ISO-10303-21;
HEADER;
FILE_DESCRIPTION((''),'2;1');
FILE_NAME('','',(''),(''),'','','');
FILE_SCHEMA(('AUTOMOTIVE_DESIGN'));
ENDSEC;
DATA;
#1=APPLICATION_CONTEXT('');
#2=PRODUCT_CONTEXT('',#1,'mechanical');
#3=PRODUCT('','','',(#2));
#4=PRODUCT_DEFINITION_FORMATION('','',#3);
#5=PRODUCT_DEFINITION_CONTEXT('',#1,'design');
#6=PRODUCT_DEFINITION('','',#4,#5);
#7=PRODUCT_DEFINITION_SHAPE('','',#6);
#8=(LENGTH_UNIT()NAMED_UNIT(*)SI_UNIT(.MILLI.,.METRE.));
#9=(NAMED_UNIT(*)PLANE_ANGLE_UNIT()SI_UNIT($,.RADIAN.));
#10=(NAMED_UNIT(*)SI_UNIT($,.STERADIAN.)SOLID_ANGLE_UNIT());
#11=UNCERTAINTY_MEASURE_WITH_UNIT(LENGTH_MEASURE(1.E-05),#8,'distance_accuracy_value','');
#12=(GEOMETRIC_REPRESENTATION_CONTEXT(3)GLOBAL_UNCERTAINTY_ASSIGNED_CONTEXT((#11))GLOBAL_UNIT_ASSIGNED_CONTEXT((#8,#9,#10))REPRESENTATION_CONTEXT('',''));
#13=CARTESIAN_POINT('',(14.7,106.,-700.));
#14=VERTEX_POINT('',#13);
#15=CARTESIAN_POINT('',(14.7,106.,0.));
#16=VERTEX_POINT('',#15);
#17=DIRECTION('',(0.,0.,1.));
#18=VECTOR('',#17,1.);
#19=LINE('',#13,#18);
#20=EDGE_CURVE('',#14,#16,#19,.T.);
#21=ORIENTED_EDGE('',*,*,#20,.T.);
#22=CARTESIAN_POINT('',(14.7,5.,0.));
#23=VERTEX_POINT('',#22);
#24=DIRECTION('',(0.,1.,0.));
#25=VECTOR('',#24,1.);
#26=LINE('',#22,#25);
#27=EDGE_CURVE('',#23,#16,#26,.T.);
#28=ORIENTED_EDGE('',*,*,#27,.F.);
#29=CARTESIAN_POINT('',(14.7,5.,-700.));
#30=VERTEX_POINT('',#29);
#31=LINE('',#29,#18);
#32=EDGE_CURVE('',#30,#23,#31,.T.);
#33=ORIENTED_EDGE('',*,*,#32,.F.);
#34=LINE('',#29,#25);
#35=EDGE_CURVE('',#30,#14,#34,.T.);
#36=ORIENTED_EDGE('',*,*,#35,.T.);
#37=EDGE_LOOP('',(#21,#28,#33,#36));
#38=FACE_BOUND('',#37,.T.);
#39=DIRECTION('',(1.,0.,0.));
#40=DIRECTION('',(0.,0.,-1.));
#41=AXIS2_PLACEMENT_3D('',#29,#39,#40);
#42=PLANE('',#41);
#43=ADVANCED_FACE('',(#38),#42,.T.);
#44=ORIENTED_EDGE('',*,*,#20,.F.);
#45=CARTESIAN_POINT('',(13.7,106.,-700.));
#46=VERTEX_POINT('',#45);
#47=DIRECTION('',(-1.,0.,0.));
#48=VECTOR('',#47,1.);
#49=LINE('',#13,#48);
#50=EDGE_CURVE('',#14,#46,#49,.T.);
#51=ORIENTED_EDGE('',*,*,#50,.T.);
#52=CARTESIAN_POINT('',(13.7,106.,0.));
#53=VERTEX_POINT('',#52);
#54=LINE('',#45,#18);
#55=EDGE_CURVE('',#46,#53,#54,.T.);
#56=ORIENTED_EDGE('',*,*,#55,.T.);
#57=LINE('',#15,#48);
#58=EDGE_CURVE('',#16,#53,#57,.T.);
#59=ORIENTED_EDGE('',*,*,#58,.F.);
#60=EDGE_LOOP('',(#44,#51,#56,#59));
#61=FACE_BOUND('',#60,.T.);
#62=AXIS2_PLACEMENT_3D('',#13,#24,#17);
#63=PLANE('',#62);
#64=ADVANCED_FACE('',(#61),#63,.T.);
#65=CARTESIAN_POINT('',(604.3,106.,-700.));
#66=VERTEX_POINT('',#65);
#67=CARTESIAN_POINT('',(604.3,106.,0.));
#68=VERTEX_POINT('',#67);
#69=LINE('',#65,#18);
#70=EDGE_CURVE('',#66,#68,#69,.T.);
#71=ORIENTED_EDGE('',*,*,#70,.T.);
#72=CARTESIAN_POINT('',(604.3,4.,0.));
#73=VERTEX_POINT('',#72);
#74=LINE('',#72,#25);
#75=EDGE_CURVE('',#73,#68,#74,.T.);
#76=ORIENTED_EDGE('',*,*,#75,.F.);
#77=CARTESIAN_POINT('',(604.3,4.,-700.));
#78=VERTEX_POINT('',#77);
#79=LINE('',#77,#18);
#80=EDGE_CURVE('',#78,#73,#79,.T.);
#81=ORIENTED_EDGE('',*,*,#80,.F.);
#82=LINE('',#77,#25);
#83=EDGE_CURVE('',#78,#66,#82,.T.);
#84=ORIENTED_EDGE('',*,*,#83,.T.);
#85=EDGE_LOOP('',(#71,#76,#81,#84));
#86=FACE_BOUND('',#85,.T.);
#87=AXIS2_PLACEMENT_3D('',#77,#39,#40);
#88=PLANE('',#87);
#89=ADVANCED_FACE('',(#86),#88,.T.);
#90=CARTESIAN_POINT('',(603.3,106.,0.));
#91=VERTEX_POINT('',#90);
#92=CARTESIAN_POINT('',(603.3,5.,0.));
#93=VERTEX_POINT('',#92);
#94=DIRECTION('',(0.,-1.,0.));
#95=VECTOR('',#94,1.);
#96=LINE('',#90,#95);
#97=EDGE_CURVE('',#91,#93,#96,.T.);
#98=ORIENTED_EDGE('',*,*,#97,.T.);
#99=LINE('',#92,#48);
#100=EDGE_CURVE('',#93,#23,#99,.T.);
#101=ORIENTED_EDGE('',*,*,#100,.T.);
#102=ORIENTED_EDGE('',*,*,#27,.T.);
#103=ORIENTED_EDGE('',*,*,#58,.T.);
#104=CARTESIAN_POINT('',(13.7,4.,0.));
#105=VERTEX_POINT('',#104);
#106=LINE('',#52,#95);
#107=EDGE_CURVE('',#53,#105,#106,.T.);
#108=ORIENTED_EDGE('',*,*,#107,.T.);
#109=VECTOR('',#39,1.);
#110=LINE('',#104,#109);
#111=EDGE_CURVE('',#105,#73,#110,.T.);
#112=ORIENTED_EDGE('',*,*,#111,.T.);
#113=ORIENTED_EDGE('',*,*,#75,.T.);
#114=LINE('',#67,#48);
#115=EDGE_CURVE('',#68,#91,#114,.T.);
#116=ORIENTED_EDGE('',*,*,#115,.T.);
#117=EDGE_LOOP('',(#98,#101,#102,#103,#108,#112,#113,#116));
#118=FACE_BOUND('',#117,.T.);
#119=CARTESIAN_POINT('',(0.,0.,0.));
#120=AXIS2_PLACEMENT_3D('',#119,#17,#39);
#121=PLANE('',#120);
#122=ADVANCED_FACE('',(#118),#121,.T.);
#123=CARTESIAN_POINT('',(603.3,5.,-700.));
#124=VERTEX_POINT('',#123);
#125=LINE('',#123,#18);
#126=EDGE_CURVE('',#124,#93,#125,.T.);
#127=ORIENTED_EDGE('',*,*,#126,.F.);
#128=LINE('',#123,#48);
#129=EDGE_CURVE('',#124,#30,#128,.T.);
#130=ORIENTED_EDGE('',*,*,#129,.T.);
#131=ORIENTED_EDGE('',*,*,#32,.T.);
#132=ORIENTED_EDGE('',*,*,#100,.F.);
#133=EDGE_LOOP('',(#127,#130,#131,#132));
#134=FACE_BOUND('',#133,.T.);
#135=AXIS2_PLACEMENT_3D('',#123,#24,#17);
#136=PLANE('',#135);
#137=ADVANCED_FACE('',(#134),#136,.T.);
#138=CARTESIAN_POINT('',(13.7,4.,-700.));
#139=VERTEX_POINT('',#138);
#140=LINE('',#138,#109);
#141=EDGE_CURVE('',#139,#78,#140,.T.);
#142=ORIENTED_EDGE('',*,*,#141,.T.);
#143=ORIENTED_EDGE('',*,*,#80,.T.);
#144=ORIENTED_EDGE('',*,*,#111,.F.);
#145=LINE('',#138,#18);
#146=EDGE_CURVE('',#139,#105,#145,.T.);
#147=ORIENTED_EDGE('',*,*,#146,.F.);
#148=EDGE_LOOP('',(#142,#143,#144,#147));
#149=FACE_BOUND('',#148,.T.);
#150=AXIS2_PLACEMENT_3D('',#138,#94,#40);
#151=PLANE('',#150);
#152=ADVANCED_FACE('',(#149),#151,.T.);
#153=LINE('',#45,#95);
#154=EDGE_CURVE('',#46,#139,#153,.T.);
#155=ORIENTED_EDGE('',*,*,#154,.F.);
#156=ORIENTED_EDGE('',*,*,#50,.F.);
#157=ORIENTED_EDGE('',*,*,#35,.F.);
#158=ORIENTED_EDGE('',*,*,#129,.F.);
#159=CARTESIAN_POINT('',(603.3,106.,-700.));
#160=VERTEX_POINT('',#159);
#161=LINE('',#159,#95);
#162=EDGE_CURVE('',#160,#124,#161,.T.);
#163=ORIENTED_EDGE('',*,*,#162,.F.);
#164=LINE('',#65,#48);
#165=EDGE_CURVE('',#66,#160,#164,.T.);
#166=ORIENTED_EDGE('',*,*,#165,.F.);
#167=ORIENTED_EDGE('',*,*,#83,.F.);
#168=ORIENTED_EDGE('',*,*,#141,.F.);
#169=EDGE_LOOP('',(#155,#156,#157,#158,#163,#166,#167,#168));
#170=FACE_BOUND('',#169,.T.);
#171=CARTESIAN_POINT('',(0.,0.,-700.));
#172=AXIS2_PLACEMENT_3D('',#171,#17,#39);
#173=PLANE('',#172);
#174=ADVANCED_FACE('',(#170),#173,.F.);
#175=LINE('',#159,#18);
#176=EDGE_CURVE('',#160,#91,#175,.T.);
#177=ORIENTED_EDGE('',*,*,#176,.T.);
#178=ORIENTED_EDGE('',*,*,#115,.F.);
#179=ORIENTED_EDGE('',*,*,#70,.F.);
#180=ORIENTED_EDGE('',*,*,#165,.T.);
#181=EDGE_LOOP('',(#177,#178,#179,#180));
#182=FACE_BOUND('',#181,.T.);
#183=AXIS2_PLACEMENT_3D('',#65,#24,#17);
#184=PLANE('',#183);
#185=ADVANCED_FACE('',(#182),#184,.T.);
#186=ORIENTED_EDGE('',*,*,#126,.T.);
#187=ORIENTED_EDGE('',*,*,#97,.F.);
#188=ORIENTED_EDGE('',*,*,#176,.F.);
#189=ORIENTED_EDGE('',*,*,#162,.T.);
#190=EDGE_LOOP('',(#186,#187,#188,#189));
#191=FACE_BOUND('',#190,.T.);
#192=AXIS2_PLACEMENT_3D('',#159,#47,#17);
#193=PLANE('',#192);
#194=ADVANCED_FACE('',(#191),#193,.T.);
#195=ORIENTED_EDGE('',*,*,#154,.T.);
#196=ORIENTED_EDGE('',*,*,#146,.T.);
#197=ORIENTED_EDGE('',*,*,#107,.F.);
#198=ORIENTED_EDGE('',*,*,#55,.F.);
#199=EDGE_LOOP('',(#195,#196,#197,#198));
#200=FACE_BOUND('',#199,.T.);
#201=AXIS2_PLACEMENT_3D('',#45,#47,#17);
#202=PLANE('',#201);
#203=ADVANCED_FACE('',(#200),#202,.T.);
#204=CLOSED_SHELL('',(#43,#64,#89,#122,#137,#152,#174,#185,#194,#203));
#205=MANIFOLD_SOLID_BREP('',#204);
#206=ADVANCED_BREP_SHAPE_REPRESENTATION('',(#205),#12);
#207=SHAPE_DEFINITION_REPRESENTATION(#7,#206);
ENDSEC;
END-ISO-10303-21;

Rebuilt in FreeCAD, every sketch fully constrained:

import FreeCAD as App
import Part
import Sketcher
from FreeCAD import Vector
Q = App.Units.Quantity


def add_polygon(sketch, points):
    """Adds a closed chain of lines whose ends are joined by coincident constraints."""
    first, n = sketch.GeometryCount, len(points)
    for a, b in zip(points, points[1:] + points[:1]):
        sketch.addGeometry(Part.LineSegment(App.Vector(*a, 0), App.Vector(*b, 0)), False)
    for i in range(n):
        sketch.addConstraint(Sketcher.Constraint("Coincident", first + i, 2, first + (i + 1) % n, 1))

doc = App.newDocument("Part")
body = doc.addObject("PartDesign::Body", "Body")

sketch1 = body.newObject("Sketcher::SketchObject", "Sketch")
sketch1.AttachmentSupport = (doc.getObject("XY_Plane"), [""])
sketch1.MapMode = "FlatFace"
add_polygon(sketch1, [(13.7, 106), (13.7, 4), (604.3, 4), (604.3, 106), (603.3, 106), (603.3, 5), (14.7, 5), (14.7, 106)])
sketch1.addConstraint(Sketcher.Constraint("Vertical", 0))
sketch1.addConstraint(Sketcher.Constraint("Horizontal", 1))
sketch1.addConstraint(Sketcher.Constraint("Vertical", 2))
sketch1.addConstraint(Sketcher.Constraint("Horizontal", 3))
sketch1.addConstraint(Sketcher.Constraint("Vertical", 4))
sketch1.addConstraint(Sketcher.Constraint("Horizontal", 5))
sketch1.addConstraint(Sketcher.Constraint("Vertical", 6))
sketch1.addConstraint(Sketcher.Constraint("Horizontal", 7))
sketch1.addConstraint(Sketcher.Constraint("Horizontal", 3, 2, 6, 2))
sketch1.addConstraint(Sketcher.Constraint("Equal", 3, 7))
sketch1.addConstraint(Sketcher.Constraint("DistanceX", 3, 2, 3, 1, Q("1 mm")))
sketch1.addConstraint(Sketcher.Constraint("DistanceY", 0, 2, 0, 1, Q("102 mm")))
sketch1.addConstraint(Sketcher.Constraint("DistanceY", 4, 2, 4, 1, Q("101 mm")))
sketch1.addConstraint(Sketcher.Constraint("DistanceX", 1, 1, 1, 2, Q("590.6 mm")))
sketch1.addConstraint(Sketcher.Constraint("DistanceY", -1, 1, 0, 2, Q("4 mm")))
sketch1.addConstraint(Sketcher.Constraint("DistanceX", -1, 1, 0, 2, Q("13.7 mm")))
pad1 = body.newObject("PartDesign::Pad", "Pad")
pad1.Profile = sketch1
pad1.Length = 700
pad1.Reversed = True

doc.recompute()
